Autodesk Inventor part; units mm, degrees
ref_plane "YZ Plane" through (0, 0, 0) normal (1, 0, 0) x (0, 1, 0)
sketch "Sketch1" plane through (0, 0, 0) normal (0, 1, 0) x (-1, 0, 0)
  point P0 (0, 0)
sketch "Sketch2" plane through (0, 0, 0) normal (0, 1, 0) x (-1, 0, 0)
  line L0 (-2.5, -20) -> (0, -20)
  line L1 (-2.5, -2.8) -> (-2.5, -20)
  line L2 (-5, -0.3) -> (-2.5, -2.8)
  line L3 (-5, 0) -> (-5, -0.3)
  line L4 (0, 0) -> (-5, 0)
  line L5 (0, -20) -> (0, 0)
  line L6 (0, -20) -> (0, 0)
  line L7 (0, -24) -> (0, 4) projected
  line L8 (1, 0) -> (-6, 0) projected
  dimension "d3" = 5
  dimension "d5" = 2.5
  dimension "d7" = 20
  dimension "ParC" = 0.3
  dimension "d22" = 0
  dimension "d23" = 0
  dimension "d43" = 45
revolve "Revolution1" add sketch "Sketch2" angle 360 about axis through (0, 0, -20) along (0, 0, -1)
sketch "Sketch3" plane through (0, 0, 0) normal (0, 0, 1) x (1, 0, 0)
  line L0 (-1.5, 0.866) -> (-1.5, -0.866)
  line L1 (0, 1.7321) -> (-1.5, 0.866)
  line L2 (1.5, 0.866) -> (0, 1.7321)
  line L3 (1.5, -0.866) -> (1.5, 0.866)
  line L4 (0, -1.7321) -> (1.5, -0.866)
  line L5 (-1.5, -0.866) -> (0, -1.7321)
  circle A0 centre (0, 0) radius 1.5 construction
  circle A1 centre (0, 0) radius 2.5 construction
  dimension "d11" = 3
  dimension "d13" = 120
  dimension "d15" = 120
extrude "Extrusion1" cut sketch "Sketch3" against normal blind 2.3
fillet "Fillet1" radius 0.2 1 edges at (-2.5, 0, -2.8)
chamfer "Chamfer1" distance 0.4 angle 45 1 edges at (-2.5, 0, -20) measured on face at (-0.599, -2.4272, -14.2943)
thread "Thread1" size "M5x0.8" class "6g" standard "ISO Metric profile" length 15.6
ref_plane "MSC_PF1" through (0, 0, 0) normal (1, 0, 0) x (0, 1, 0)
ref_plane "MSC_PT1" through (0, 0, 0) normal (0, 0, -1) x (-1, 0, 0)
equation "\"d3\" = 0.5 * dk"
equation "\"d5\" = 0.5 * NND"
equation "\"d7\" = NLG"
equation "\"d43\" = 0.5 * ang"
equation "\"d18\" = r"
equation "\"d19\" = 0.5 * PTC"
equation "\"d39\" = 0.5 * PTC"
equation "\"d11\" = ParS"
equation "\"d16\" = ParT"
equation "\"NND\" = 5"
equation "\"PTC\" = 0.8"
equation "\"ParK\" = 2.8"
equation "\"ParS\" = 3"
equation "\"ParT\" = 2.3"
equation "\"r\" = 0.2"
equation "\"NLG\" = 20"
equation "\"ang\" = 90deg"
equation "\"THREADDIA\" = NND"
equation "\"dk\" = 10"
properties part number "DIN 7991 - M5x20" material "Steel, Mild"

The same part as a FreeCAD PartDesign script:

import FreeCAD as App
import Part
import Sketcher
from FreeCAD import Vector


def edges_at(feature, points):
    """Names of the edges that pass closest to the given points."""
    edges = feature.Shape.Edges
    near = lambda p: min(range(len(edges)), key=lambda i: edges[i].distToShape(Part.Vertex(*p))[0])
    return sorted({f"Edge{near(p) + 1}" for p in points})

doc = App.newDocument("Part")
params = doc.addObject("Spreadsheet::Sheet", "Params")
for row, (alias, value) in enumerate([
    ("sketch1_width", "5 mm"),
    ("sketch1_height", "20 mm"),
    ("sketch1_width2", "2.5 mm"),
    ("sketch1_height2", "0.3 mm"),
    ("revolution_angle", "360 deg"),
    ("pocket1_length", "2.3 mm"),
    ("fillet_radius", "0.2 mm"),
    ("chamfer_size", "0.4 mm"),
], start=1):
    params.set(f"A{row}", alias)
    params.set(f"B{row}", "=" + value)
    params.setAlias(f"B{row}", alias)

body = doc.addObject("PartDesign::Body", "Body")

sketch1 = doc.addObject("Sketcher::SketchObject", "Sketch")
body.addObject(sketch1)
sketch1.AttachmentSupport = (doc.XZ_Plane, [""])
sketch1.MapMode = "FlatFace"
sketch1.addGeometry(Part.LineSegment(Vector(2.5, -2.8, 0), Vector(2.5, -20, 0)), False)
sketch1.addGeometry(Part.LineSegment(Vector(2.5, -20, 0), Vector(0, -20, 0)), False)
sketch1.addGeometry(Part.LineSegment(Vector(0, -20, 0), Vector(0, 0, 0)), False)
sketch1.addGeometry(Part.LineSegment(Vector(0, 0, 0), Vector(5, 0, 0)), False)
sketch1.addGeometry(Part.LineSegment(Vector(5, 0, 0), Vector(5, -0.3, 0)), False)
sketch1.addGeometry(Part.LineSegment(Vector(5, -0.3, 0), Vector(2.5, -2.8, 0)), False)
sketch1.addConstraint(Sketcher.Constraint("Coincident", 0, 2, 1, 1))
sketch1.addConstraint(Sketcher.Constraint("Coincident", 1, 2, 2, 1))
sketch1.addConstraint(Sketcher.Constraint("Coincident", 2, 2, 3, 1))
sketch1.addConstraint(Sketcher.Constraint("Coincident", 3, 2, 4, 1))
sketch1.addConstraint(Sketcher.Constraint("Coincident", 4, 2, 5, 1))
sketch1.addConstraint(Sketcher.Constraint("Coincident", 5, 2, 0, 1))
sketch1.addConstraint(Sketcher.Constraint("Vertical", 0))
sketch1.addConstraint(Sketcher.Constraint("Horizontal", 1))
sketch1.addConstraint(Sketcher.Constraint("Vertical", 2))
sketch1.addConstraint(Sketcher.Constraint("Horizontal", 3))
sketch1.addConstraint(Sketcher.Constraint("Vertical", 4))
sketch1.addConstraint(Sketcher.Constraint("Coincident", 2, 2, -1, 1))
sketch1.addConstraint(Sketcher.Constraint("DistanceX", 3, 1, 3, 2, 5.0))
sketch1.addConstraint(Sketcher.Constraint("DistanceY", 2, 1, 2, 2, 20.0))
sketch1.addConstraint(Sketcher.Constraint("DistanceX", 1, 2, 1, 1, 2.5))
sketch1.addConstraint(Sketcher.Constraint("DistanceY", 4, 2, 4, 1, 0.3))
sketch1.addConstraint(Sketcher.Constraint("DistanceY", 5, 2, 4, 2, 2.5))
sketch1.setExpression("Constraints[12]", "Params.sketch1_width")
sketch1.setExpression("Constraints[13]", "Params.sketch1_height")
sketch1.setExpression("Constraints[14]", "Params.sketch1_width2")
sketch1.setExpression("Constraints[15]", "Params.sketch1_height2")
revolution = doc.addObject("PartDesign::Revolution", "Revolution")
body.addObject(revolution)
revolution.Profile = sketch1
revolution.ReferenceAxis = (sketch1, ["V_Axis"])
revolution.setExpression("Angle", "Params.revolution_angle")

sketch2 = doc.addObject("Sketcher::SketchObject", "Sketch001")
body.addObject(sketch2)
sketch2.AttachmentSupport = (doc.XY_Plane, [""])
sketch2.MapMode = "FlatFace"
sketch2.addGeometry(Part.LineSegment(Vector(0, 1.7, 0), Vector(-1.5, 0.9, 0)), False)
sketch2.addGeometry(Part.LineSegment(Vector(-1.5, 0.9, 0), Vector(-1.5, -0.9, 0)), False)
sketch2.addGeometry(Part.LineSegment(Vector(-1.5, -0.9, 0), Vector(0, -1.7, 0)), False)
sketch2.addGeometry(Part.LineSegment(Vector(0, -1.7, 0), Vector(1.5, -0.9, 0)), False)
sketch2.addGeometry(Part.LineSegment(Vector(1.5, -0.9, 0), Vector(1.5, 0.9, 0)), False)
sketch2.addGeometry(Part.LineSegment(Vector(1.5, 0.9, 0), Vector(0, 1.7, 0)), False)
sketch2.addConstraint(Sketcher.Constraint("Coincident", 0, 2, 1, 1))
sketch2.addConstraint(Sketcher.Constraint("Coincident", 1, 2, 2, 1))
sketch2.addConstraint(Sketcher.Constraint("Coincident", 2, 2, 3, 1))
sketch2.addConstraint(Sketcher.Constraint("Coincident", 3, 2, 4, 1))
sketch2.addConstraint(Sketcher.Constraint("Coincident", 4, 2, 5, 1))
sketch2.addConstraint(Sketcher.Constraint("Coincident", 5, 2, 0, 1))
sketch2.addConstraint(Sketcher.Constraint("Vertical", 1))
sketch2.addConstraint(Sketcher.Constraint("Vertical", 4))
sketch2.addConstraint(Sketcher.Constraint("Symmetric", 0, 2, 3, 2, -1, 1))
sketch2.addConstraint(Sketcher.Constraint("Symmetric", 2, 2, 5, 2, -1, 1))
sketch2.addConstraint(Sketcher.Constraint("PointOnObject", 2, 2, -2))
sketch2.addConstraint(Sketcher.Constraint("Parallel", 2, 5))
sketch2.addConstraint(Sketcher.Constraint("Horizontal", 1, 2, 3, 2))
sketch2.addConstraint(Sketcher.Constraint("DistanceX", 1, 2, 3, 2, 3.0))
sketch2.addConstraint(Sketcher.Constraint("DistanceY", 1, 2, 1, 1, 1.732))
sketch2.addConstraint(Sketcher.Constraint("Distance", 0, 1.732))
pocket1 = doc.addObject("PartDesign::Pocket", "Pocket")
body.addObject(pocket1)
pocket1.Profile = sketch2
pocket1.setExpression("Length", "Params.pocket1_length")
doc.recompute()

fillet = doc.addObject("PartDesign::Fillet", "Fillet")
body.addObject(fillet)
fillet.Base = (pocket1, edges_at(pocket1, [(-2.5, 0, -2.8)]))
fillet.setExpression("Radius", "Params.fillet_radius")
doc.recompute()

chamfer = doc.addObject("PartDesign::Chamfer", "Chamfer")
body.addObject(chamfer)
chamfer.Base = (fillet, edges_at(fillet, [(-2.5, 0, -20)]))
chamfer.setExpression("Size", "Params.chamfer_size")

doc.recompute()
